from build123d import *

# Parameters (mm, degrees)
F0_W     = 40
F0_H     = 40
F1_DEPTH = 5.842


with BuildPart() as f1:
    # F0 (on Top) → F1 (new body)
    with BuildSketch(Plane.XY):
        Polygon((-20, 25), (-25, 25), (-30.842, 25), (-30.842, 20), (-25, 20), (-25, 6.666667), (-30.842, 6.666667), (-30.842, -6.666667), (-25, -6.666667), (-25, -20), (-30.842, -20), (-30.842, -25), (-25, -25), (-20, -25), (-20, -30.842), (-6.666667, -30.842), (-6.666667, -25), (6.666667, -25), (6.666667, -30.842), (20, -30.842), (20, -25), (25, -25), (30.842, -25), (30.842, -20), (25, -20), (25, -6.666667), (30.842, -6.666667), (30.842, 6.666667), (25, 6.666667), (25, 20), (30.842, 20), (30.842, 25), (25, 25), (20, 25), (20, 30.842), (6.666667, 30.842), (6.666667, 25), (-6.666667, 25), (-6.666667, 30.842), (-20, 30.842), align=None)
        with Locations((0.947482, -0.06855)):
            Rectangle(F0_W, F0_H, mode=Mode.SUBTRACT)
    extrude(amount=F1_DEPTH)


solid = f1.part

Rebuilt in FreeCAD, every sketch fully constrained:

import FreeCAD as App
import Part
import Sketcher
from FreeCAD import Vector
Q = App.Units.Quantity

doc = App.newDocument("Part")
body = doc.addObject("PartDesign::Body", "Body")

sketch1 = doc.addObject("Sketcher::SketchObject", "Sketch")
body.addObject(sketch1)
sketch1.AttachmentSupport = (doc.XY_Plane, [""])
sketch1.MapMode = "FlatFace"
sketch1.addGeometry(Part.LineSegment(Vector(-20, 25, 0), Vector(-31, 25, 0)), False)
sketch1.addGeometry(Part.LineSegment(Vector(-31, 25, 0), Vector(-31, 20, 0)), False)
sketch1.addGeometry(Part.LineSegment(Vector(-31, 20, 0), Vector(-25, 20, 0)), False)
sketch1.addGeometry(Part.LineSegment(Vector(-25, 20, 0), Vector(-25, 7, 0)), False)
sketch1.addGeometry(Part.LineSegment(Vector(-25, 7, 0), Vector(-31, 7, 0)), False)
sketch1.addGeometry(Part.LineSegment(Vector(-31, 7, 0), Vector(-31, -7, 0)), False)
sketch1.addGeometry(Part.LineSegment(Vector(-31, -7, 0), Vector(-25, -7, 0)), False)
sketch1.addGeometry(Part.LineSegment(Vector(-25, -7, 0), Vector(-25, -20, 0)), False)
sketch1.addGeometry(Part.LineSegment(Vector(-25, -20, 0), Vector(-31, -20, 0)), False)
sketch1.addGeometry(Part.LineSegment(Vector(-31, -20, 0), Vector(-31, -25, 0)), False)
sketch1.addGeometry(Part.LineSegment(Vector(-31, -25, 0), Vector(-20, -25, 0)), False)
sketch1.addGeometry(Part.LineSegment(Vector(-20, -25, 0), Vector(-20, -31, 0)), False)
sketch1.addGeometry(Part.LineSegment(Vector(-20, -31, 0), Vector(-7, -31, 0)), False)
sketch1.addGeometry(Part.LineSegment(Vector(-7, -31, 0), Vector(-7, -25, 0)), False)
sketch1.addGeometry(Part.LineSegment(Vector(-7, -25, 0), Vector(7, -25, 0)), False)
sketch1.addGeometry(Part.LineSegment(Vector(7, -25, 0), Vector(7, -31, 0)), False)
sketch1.addGeometry(Part.LineSegment(Vector(7, -31, 0), Vector(20, -31, 0)), False)
sketch1.addGeometry(Part.LineSegment(Vector(20, -31, 0), Vector(20, -25, 0)), False)
sketch1.addGeometry(Part.LineSegment(Vector(20, -25, 0), Vector(31, -25, 0)), False)
sketch1.addGeometry(Part.LineSegment(Vector(31, -25, 0), Vector(31, -20, 0)), False)
sketch1.addGeometry(Part.LineSegment(Vector(31, -20, 0), Vector(25, -20, 0)), False)
sketch1.addGeometry(Part.LineSegment(Vector(25, -20, 0), Vector(25, -7, 0)), False)
sketch1.addGeometry(Part.LineSegment(Vector(25, -7, 0), Vector(31, -7, 0)), False)
sketch1.addGeometry(Part.LineSegment(Vector(31, -7, 0), Vector(31, 7, 0)), False)
sketch1.addGeometry(Part.LineSegment(Vector(31, 7, 0), Vector(25, 7, 0)), False)
sketch1.addGeometry(Part.LineSegment(Vector(25, 7, 0), Vector(25, 20, 0)), False)
sketch1.addGeometry(Part.LineSegment(Vector(25, 20, 0), Vector(31, 20, 0)), False)
sketch1.addGeometry(Part.LineSegment(Vector(31, 20, 0), Vector(31, 25, 0)), False)
sketch1.addGeometry(Part.LineSegment(Vector(31, 25, 0), Vector(20, 25, 0)), False)
sketch1.addGeometry(Part.LineSegment(Vector(20, 25, 0), Vector(20, 31, 0)), False)
sketch1.addGeometry(Part.LineSegment(Vector(20, 31, 0), Vector(7, 31, 0)), False)
sketch1.addGeometry(Part.LineSegment(Vector(7, 31, 0), Vector(7, 25, 0)), False)
sketch1.addGeometry(Part.LineSegment(Vector(7, 25, 0), Vector(-7, 25, 0)), False)
sketch1.addGeometry(Part.LineSegment(Vector(-7, 25, 0), Vector(-7, 31, 0)), False)
sketch1.addGeometry(Part.LineSegment(Vector(-7, 31, 0), Vector(-20, 31, 0)), False)
sketch1.addGeometry(Part.LineSegment(Vector(-20, 31, 0), Vector(-20, 25, 0)), False)
sketch1.addGeometry(Part.LineSegment(Vector(21, -20, 0), Vector(-19, -20, 0)), False)
sketch1.addGeometry(Part.LineSegment(Vector(-19, -20, 0), Vector(-19, 20, 0)), False)
sketch1.addGeometry(Part.LineSegment(Vector(-19, 20, 0), Vector(21, 20, 0)), False)
sketch1.addGeometry(Part.LineSegment(Vector(21, 20, 0), Vector(21, -20, 0)), False)
sketch1.addConstraint(Sketcher.Constraint("Coincident", 0, 2, 1, 1))
sketch1.addConstraint(Sketcher.Constraint("Coincident", 1, 2, 2, 1))
sketch1.addConstraint(Sketcher.Constraint("Coincident", 2, 2, 3, 1))
sketch1.addConstraint(Sketcher.Constraint("Coincident", 3, 2, 4, 1))
sketch1.addConstraint(Sketcher.Constraint("Coincident", 4, 2, 5, 1))
sketch1.addConstraint(Sketcher.Constraint("Coincident", 5, 2, 6, 1))
sketch1.addConstraint(Sketcher.Constraint("Coincident", 6, 2, 7, 1))
sketch1.addConstraint(Sketcher.Constraint("Coincident", 7, 2, 8, 1))
sketch1.addConstraint(Sketcher.Constraint("Coincident", 8, 2, 9, 1))
sketch1.addConstraint(Sketcher.Constraint("Coincident", 9, 2, 10, 1))
sketch1.addConstraint(Sketcher.Constraint("Coincident", 10, 2, 11, 1))
sketch1.addConstraint(Sketcher.Constraint("Coincident", 11, 2, 12, 1))
sketch1.addConstraint(Sketcher.Constraint("Coincident", 12, 2, 13, 1))
sketch1.addConstraint(Sketcher.Constraint("Coincident", 13, 2, 14, 1))
sketch1.addConstraint(Sketcher.Constraint("Coincident", 14, 2, 15, 1))
sketch1.addConstraint(Sketcher.Constraint("Coincident", 15, 2, 16, 1))
sketch1.addConstraint(Sketcher.Constraint("Coincident", 16, 2, 17, 1))
sketch1.addConstraint(Sketcher.Constraint("Coincident", 17, 2, 18, 1))
sketch1.addConstraint(Sketcher.Constraint("Coincident", 18, 2, 19, 1))
sketch1.addConstraint(Sketcher.Constraint("Coincident", 19, 2, 20, 1))
sketch1.addConstraint(Sketcher.Constraint("Coincident", 20, 2, 21, 1))
sketch1.addConstraint(Sketcher.Constraint("Coincident", 21, 2, 22, 1))
sketch1.addConstraint(Sketcher.Constraint("Coincident", 22, 2, 23, 1))
sketch1.addConstraint(Sketcher.Constraint("Coincident", 23, 2, 24, 1))
sketch1.addConstraint(Sketcher.Constraint("Coincident", 24, 2, 25, 1))
sketch1.addConstraint(Sketcher.Constraint("Coincident", 25, 2, 26, 1))
sketch1.addConstraint(Sketcher.Constraint("Coincident", 26, 2, 27, 1))
sketch1.addConstraint(Sketcher.Constraint("Coincident", 27, 2, 28, 1))
sketch1.addConstraint(Sketcher.Constraint("Coincident", 28, 2, 29, 1))
sketch1.addConstraint(Sketcher.Constraint("Coincident", 29, 2, 30, 1))
sketch1.addConstraint(Sketcher.Constraint("Coincident", 30, 2, 31, 1))
sketch1.addConstraint(Sketcher.Constraint("Coincident", 31, 2, 32, 1))
sketch1.addConstraint(Sketcher.Constraint("Coincident", 32, 2, 33, 1))
sketch1.addConstraint(Sketcher.Constraint("Coincident", 33, 2, 34, 1))
sketch1.addConstraint(Sketcher.Constraint("Coincident", 34, 2, 35, 1))
sketch1.addConstraint(Sketcher.Constraint("Coincident", 35, 2, 0, 1))
sketch1.addConstraint(Sketcher.Constraint("Coincident", 36, 2, 37, 1))
sketch1.addConstraint(Sketcher.Constraint("Coincident", 37, 2, 38, 1))
sketch1.addConstraint(Sketcher.Constraint("Coincident", 38, 2, 39, 1))
sketch1.addConstraint(Sketcher.Constraint("Coincident", 39, 2, 36, 1))
sketch1.addConstraint(Sketcher.Constraint("Horizontal", 0))
sketch1.addConstraint(Sketcher.Constraint("Vertical", 1))
sketch1.addConstraint(Sketcher.Constraint("Horizontal", 2))
sketch1.addConstraint(Sketcher.Constraint("Vertical", 3))
sketch1.addConstraint(Sketcher.Constraint("Horizontal", 4))
sketch1.addConstraint(Sketcher.Constraint("Vertical", 5))
sketch1.addConstraint(Sketcher.Constraint("Horizontal", 6))
sketch1.addConstraint(Sketcher.Constraint("Vertical", 7))
sketch1.addConstraint(Sketcher.Constraint("Horizontal", 8))
sketch1.addConstraint(Sketcher.Constraint("Vertical", 9))
sketch1.addConstraint(Sketcher.Constraint("Horizontal", 10))
sketch1.addConstraint(Sketcher.Constraint("Vertical", 11))
sketch1.addConstraint(Sketcher.Constraint("Horizontal", 12))
sketch1.addConstraint(Sketcher.Constraint("Vertical", 13))
sketch1.addConstraint(Sketcher.Constraint("Horizontal", 14))
sketch1.addConstraint(Sketcher.Constraint("Vertical", 15))
sketch1.addConstraint(Sketcher.Constraint("Horizontal", 16))
sketch1.addConstraint(Sketcher.Constraint("Vertical", 17))
sketch1.addConstraint(Sketcher.Constraint("Horizontal", 18))
sketch1.addConstraint(Sketcher.Constraint("Vertical", 19))
sketch1.addConstraint(Sketcher.Constraint("Horizontal", 20))
sketch1.addConstraint(Sketcher.Constraint("Vertical", 21))
sketch1.addConstraint(Sketcher.Constraint("Horizontal", 22))
sketch1.addConstraint(Sketcher.Constraint("Vertical", 23))
sketch1.addConstraint(Sketcher.Constraint("Horizontal", 24))
sketch1.addConstraint(Sketcher.Constraint("Vertical", 25))
sketch1.addConstraint(Sketcher.Constraint("Horizontal", 26))
sketch1.addConstraint(Sketcher.Constraint("Vertical", 27))
sketch1.addConstraint(Sketcher.Constraint("Horizontal", 28))
sketch1.addConstraint(Sketcher.Constraint("Vertical", 29))
sketch1.addConstraint(Sketcher.Constraint("Horizontal", 30))
sketch1.addConstraint(Sketcher.Constraint("Vertical", 31))
sketch1.addConstraint(Sketcher.Constraint("Horizontal", 32))
sketch1.addConstraint(Sketcher.Constraint("Vertical", 33))
sketch1.addConstraint(Sketcher.Constraint("Horizontal", 34))
sketch1.addConstraint(Sketcher.Constraint("Vertical", 35))
sketch1.addConstraint(Sketcher.Constraint("Horizontal", 36))
sketch1.addConstraint(Sketcher.Constraint("Vertical", 37))
sketch1.addConstraint(Sketcher.Constraint("Horizontal", 38))
sketch1.addConstraint(Sketcher.Constraint("Vertical", 39))
sketch1.addConstraint(Sketcher.Constraint("Symmetric", 0, 2, 18, 2, -1, 1))
sketch1.addConstraint(Sketcher.Constraint("Symmetric", 2, 2, 20, 2, -1, 1))
sketch1.addConstraint(Sketcher.Constraint("Symmetric", 4, 2, 22, 2, -1, 1))
sketch1.addConstraint(Sketcher.Constraint("Symmetric", 6, 2, 24, 2, -1, 1))
sketch1.addConstraint(Sketcher.Constraint("Symmetric", 8, 2, 26, 2, -1, 1))
sketch1.addConstraint(Sketcher.Constraint("Symmetric", 10, 2, 28, 2, -1, 1))
sketch1.addConstraint(Sketcher.Constraint("Symmetric", 12, 2, 30, 2, -1, 1))
sketch1.addConstraint(Sketcher.Constraint("Symmetric", 14, 2, 32, 2, -1, 1))
sketch1.addConstraint(Sketcher.Constraint("Symmetric", 16, 2, 34, 2, -1, 1))
sketch1.addConstraint(Sketcher.Constraint("Symmetric", 12, 2, 15, 2, -2))
sketch1.addConstraint(Sketcher.Constraint("Symmetric", 10, 2, 17, 2, -2))
sketch1.addConstraint(Sketcher.Constraint("Symmetric", 8, 2, 19, 2, -2))
sketch1.addConstraint(Sketcher.Constraint("Symmetric", 6, 2, 21, 2, -2))
sketch1.addConstraint(Sketcher.Constraint("Horizontal", 10, 2, 13, 2))
sketch1.addConstraint(Sketcher.Constraint("Vertical", 1, 2, 4, 2))
sketch1.addConstraint(Sketcher.Constraint("Equal", 12, 14))
sketch1.addConstraint(Sketcher.Constraint("Equal", 34, 3))
sketch1.addConstraint(Sketcher.Constraint("Equal", 3, 5))
sketch1.addConstraint(Sketcher.Constraint("Equal", 26, 11))
sketch1.addConstraint(Sketcher.Constraint("Equal", 38, 37))
sketch1.addConstraint(Sketcher.Constraint("DistanceX", 36, 2, 36, 1, Q("40 mm")))
sketch1.addConstraint(Sketcher.Constraint("DistanceY", 1, 2, 1, 1, Q("5 mm")))
sketch1.addConstraint(Sketcher.Constraint("DistanceY", -1, 1, 0, 2, Q("25 mm")))
sketch1.addConstraint(Sketcher.Constraint("DistanceX", 2, 2, -1, 1, Q("25 mm")))
sketch1.addConstraint(Sketcher.Constraint("DistanceX", 0, 2, 0, 1, Q("10.842 mm")))
sketch1.addConstraint(Sketcher.Constraint("DistanceY", 36, 2, -1, 1, Q("20.06855 mm")))
sketch1.addConstraint(Sketcher.Constraint("DistanceX", 36, 2, -1, 1, Q("19.052518 mm")))
pad1 = doc.addObject("PartDesign::Pad", "Pad")
body.addObject(pad1)
pad1.Profile = sketch1
pad1.Length = 5.842

doc.recompute()
